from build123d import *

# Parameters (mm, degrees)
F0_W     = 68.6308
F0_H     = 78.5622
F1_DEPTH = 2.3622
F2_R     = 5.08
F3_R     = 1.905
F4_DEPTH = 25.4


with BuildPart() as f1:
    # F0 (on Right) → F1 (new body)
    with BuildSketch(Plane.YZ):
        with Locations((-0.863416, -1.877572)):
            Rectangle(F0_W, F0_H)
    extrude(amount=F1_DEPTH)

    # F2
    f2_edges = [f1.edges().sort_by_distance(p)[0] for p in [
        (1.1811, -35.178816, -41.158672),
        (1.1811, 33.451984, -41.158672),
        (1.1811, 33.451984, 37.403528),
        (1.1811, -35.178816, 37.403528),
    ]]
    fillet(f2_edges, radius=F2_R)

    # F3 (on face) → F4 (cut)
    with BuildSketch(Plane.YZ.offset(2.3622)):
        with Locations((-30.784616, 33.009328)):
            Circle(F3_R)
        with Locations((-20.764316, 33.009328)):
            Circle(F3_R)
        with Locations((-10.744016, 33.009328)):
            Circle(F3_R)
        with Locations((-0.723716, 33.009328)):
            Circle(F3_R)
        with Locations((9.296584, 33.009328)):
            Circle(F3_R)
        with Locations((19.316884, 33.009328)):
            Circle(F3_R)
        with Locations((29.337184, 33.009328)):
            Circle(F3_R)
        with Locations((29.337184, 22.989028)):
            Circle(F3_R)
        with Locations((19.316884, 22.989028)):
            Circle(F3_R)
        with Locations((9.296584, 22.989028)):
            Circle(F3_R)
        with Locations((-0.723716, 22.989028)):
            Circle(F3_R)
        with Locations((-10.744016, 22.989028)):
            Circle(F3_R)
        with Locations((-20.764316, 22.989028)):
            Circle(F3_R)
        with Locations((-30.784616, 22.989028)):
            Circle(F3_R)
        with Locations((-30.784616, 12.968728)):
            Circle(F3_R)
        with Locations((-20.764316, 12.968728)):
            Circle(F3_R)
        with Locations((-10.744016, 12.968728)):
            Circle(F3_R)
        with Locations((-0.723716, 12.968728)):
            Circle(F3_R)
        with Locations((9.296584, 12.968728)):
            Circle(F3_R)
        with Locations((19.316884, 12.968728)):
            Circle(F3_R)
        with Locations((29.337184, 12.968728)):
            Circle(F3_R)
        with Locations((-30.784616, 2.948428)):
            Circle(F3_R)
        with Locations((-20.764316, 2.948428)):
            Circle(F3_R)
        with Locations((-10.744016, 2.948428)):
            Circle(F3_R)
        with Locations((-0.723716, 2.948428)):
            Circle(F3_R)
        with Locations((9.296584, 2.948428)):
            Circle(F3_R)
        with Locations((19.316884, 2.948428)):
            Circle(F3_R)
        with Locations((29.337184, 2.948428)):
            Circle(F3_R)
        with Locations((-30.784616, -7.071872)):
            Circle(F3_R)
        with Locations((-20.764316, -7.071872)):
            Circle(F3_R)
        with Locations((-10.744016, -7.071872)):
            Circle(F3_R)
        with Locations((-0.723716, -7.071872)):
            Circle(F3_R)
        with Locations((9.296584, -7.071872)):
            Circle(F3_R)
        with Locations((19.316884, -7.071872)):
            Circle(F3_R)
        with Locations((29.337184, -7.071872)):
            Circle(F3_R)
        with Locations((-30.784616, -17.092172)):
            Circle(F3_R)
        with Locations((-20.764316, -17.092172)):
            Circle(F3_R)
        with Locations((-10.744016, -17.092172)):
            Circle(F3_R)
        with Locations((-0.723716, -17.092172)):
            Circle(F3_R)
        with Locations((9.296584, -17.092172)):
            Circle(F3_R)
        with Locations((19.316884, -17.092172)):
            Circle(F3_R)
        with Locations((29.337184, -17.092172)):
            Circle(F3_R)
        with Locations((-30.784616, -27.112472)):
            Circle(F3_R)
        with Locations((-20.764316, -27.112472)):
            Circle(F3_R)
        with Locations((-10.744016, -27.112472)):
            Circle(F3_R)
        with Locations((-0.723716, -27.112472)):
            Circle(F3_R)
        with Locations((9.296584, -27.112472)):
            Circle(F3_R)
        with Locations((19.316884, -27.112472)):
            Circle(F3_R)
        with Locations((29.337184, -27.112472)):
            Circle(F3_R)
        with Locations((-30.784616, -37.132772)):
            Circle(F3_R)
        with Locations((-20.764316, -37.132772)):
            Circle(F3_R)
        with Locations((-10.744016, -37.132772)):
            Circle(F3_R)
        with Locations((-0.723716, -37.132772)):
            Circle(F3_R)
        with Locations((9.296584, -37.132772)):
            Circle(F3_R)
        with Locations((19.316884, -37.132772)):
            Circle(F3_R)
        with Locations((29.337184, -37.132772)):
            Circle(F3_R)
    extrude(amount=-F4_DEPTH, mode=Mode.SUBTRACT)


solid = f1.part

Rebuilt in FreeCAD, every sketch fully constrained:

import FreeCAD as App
import Part
import Sketcher
Q = App.Units.Quantity


def edges_at(feature, points):
    """Names of the edges that pass closest to the given points."""
    edges = feature.Shape.Edges
    near = lambda p: min(range(len(edges)), key=lambda i: edges[i].distToShape(Part.Vertex(*p))[0])
    return sorted({f"Edge{near(p) + 1}" for p in points})


def add_polygon(sketch, points):
    """Adds a closed chain of lines whose ends are joined by coincident constraints."""
    first, n = sketch.GeometryCount, len(points)
    for a, b in zip(points, points[1:] + points[:1]):
        sketch.addGeometry(Part.LineSegment(App.Vector(*a, 0), App.Vector(*b, 0)), False)
    for i in range(n):
        sketch.addConstraint(Sketcher.Constraint("Coincident", first + i, 2, first + (i + 1) % n, 1))

doc = App.newDocument("Part")
body = doc.addObject("PartDesign::Body", "Body")

# Sketch on YZ plane
sketch1 = body.newObject("Sketcher::SketchObject", "Sketch")
sketch1.AttachmentSupport = (doc.getObject("YZ_Plane"), [""])
sketch1.MapMode = "FlatFace"
add_polygon(sketch1, [(-35, 37), (-35, -41), (33, -41), (33, 37)])  # lines 0-3
sketch1.addConstraint(Sketcher.Constraint("Vertical", 0))
sketch1.addConstraint(Sketcher.Constraint("Horizontal", 1))
sketch1.addConstraint(Sketcher.Constraint("Vertical", 2))
sketch1.addConstraint(Sketcher.Constraint("Horizontal", 3))
sketch1.addConstraint(Sketcher.Constraint("DistanceX", 1, 1, 1, 2, Q("2.702 in")))
sketch1.addConstraint(Sketcher.Constraint("DistanceY", 0, 2, 0, 1, Q("3.093 in")))
sketch1.addConstraint(Sketcher.Constraint("DistanceX", 0, 2, -1, 1, 35.178816))
sketch1.addConstraint(Sketcher.Constraint("DistanceY", 0, 2, -1, 1, 41.158672))
pad1 = body.newObject("PartDesign::Pad", "Pad")
pad1.Profile = sketch1
pad1.Length = Q("0.093 in")
doc.recompute()

fillet = body.newObject("PartDesign::Fillet", "Fillet")
fillet.Base = (pad1, edges_at(pad1, [
    (1.181, -35.179, -41.159),
    (1.181, 33.452, -41.159),
    (1.181, 33.452, 37.404),
    (1.181, -35.179, 37.404),
]))
fillet.Radius = Q("0.2 in")

# Sketch on YZ plane
sketch2 = body.newObject("Sketcher::SketchObject", "Sketch001")
sketch2.AttachmentSupport = (doc.getObject("YZ_Plane"), [""])
sketch2.MapMode = "FlatFace"
sketch2.AttachmentOffset = App.Placement(App.Vector(0, 0, 0.093 * 25.4), App.Rotation())
sketch2.addGeometry(Part.Circle(App.Vector(-30.8, 33, 0), App.Vector(0, 0, 1), 1.9), False)
sketch2.addGeometry(Part.Circle(App.Vector(-20.8, 33, 0), App.Vector(0, 0, 1), 1.9), False)
sketch2.addGeometry(Part.Circle(App.Vector(-10.7, 33, 0), App.Vector(0, 0, 1), 1.9), False)
sketch2.addGeometry(Part.Circle(App.Vector(-0.7, 33, 0), App.Vector(0, 0, 1), 1.9), False)
sketch2.addGeometry(Part.Circle(App.Vector(9.3, 33, 0), App.Vector(0, 0, 1), 1.9), False)
sketch2.addGeometry(Part.Circle(App.Vector(19.3, 33, 0), App.Vector(0, 0, 1), 1.9), False)
sketch2.addGeometry(Part.Circle(App.Vector(29.3, 33, 0), App.Vector(0, 0, 1), 1.9), False)
sketch2.addGeometry(Part.Circle(App.Vector(29.3, 23, 0), App.Vector(0, 0, 1), 1.9), False)
sketch2.addGeometry(Part.Circle(App.Vector(19.3, 23, 0), App.Vector(0, 0, 1), 1.9), False)
sketch2.addGeometry(Part.Circle(App.Vector(9.3, 23, 0), App.Vector(0, 0, 1), 1.9), False)
sketch2.addGeometry(Part.Circle(App.Vector(-0.7, 23, 0), App.Vector(0, 0, 1), 1.9), False)
sketch2.addGeometry(Part.Circle(App.Vector(-10.7, 23, 0), App.Vector(0, 0, 1), 1.9), False)
sketch2.addGeometry(Part.Circle(App.Vector(-20.8, 23, 0), App.Vector(0, 0, 1), 1.9), False)
sketch2.addGeometry(Part.Circle(App.Vector(-30.8, 23, 0), App.Vector(0, 0, 1), 1.9), False)
sketch2.addGeometry(Part.Circle(App.Vector(-30.8, 13, 0), App.Vector(0, 0, 1), 1.9), False)
sketch2.addGeometry(Part.Circle(App.Vector(-20.8, 13, 0), App.Vector(0, 0, 1), 1.9), False)
sketch2.addGeometry(Part.Circle(App.Vector(-10.7, 13, 0), App.Vector(0, 0, 1), 1.9), False)
sketch2.addGeometry(Part.Circle(App.Vector(-0.7, 13, 0), App.Vector(0, 0, 1), 1.9), False)
sketch2.addGeometry(Part.Circle(App.Vector(9.3, 13, 0), App.Vector(0, 0, 1), 1.9), False)
sketch2.addGeometry(Part.Circle(App.Vector(19.3, 13, 0), App.Vector(0, 0, 1), 1.9), False)
sketch2.addGeometry(Part.Circle(App.Vector(29.3, 13, 0), App.Vector(0, 0, 1), 1.9), False)
sketch2.addGeometry(Part.Circle(App.Vector(-30.8, 2.9, 0), App.Vector(0, 0, 1), 1.9), False)
sketch2.addGeometry(Part.Circle(App.Vector(-20.8, 2.9, 0), App.Vector(0, 0, 1), 1.9), False)
sketch2.addGeometry(Part.Circle(App.Vector(-10.7, 2.9, 0), App.Vector(0, 0, 1), 1.9), False)
sketch2.addGeometry(Part.Circle(App.Vector(-0.7, 2.9, 0), App.Vector(0, 0, 1), 1.9), False)
sketch2.addGeometry(Part.Circle(App.Vector(9.3, 2.9, 0), App.Vector(0, 0, 1), 1.9), False)
sketch2.addGeometry(Part.Circle(App.Vector(19.3, 2.9, 0), App.Vector(0, 0, 1), 1.9), False)
sketch2.addGeometry(Part.Circle(App.Vector(29.3, 2.9, 0), App.Vector(0, 0, 1), 1.9), False)
sketch2.addGeometry(Part.Circle(App.Vector(-30.8, -7.1, 0), App.Vector(0, 0, 1), 1.9), False)
sketch2.addGeometry(Part.Circle(App.Vector(-20.8, -7.1, 0), App.Vector(0, 0, 1), 1.9), False)
sketch2.addGeometry(Part.Circle(App.Vector(-10.7, -7.1, 0), App.Vector(0, 0, 1), 1.9), False)
sketch2.addGeometry(Part.Circle(App.Vector(-0.7, -7.1, 0), App.Vector(0, 0, 1), 1.9), False)
sketch2.addGeometry(Part.Circle(App.Vector(9.3, -7.1, 0), App.Vector(0, 0, 1), 1.9), False)
sketch2.addGeometry(Part.Circle(App.Vector(19.3, -7.1, 0), App.Vector(0, 0, 1), 1.9), False)
sketch2.addGeometry(Part.Circle(App.Vector(29.3, -7.1, 0), App.Vector(0, 0, 1), 1.9), False)
sketch2.addGeometry(Part.Circle(App.Vector(-30.8, -17.1, 0), App.Vector(0, 0, 1), 1.9), False)
sketch2.addGeometry(Part.Circle(App.Vector(-20.8, -17.1, 0), App.Vector(0, 0, 1), 1.9), False)
sketch2.addGeometry(Part.Circle(App.Vector(-10.7, -17.1, 0), App.Vector(0, 0, 1), 1.9), False)
sketch2.addGeometry(Part.Circle(App.Vector(-0.7, -17.1, 0), App.Vector(0, 0, 1), 1.9), False)
sketch2.addGeometry(Part.Circle(App.Vector(9.3, -17.1, 0), App.Vector(0, 0, 1), 1.9), False)
sketch2.addGeometry(Part.Circle(App.Vector(19.3, -17.1, 0), App.Vector(0, 0, 1), 1.9), False)
sketch2.addGeometry(Part.Circle(App.Vector(29.3, -17.1, 0), App.Vector(0, 0, 1), 1.9), False)
sketch2.addGeometry(Part.Circle(App.Vector(-30.8, -27.1, 0), App.Vector(0, 0, 1), 1.9), False)
sketch2.addGeometry(Part.Circle(App.Vector(-20.8, -27.1, 0), App.Vector(0, 0, 1), 1.9), False)
sketch2.addGeometry(Part.Circle(App.Vector(-10.7, -27.1, 0), App.Vector(0, 0, 1), 1.9), False)
sketch2.addGeometry(Part.Circle(App.Vector(-0.7, -27.1, 0), App.Vector(0, 0, 1), 1.9), False)
sketch2.addGeometry(Part.Circle(App.Vector(9.3, -27.1, 0), App.Vector(0, 0, 1), 1.9), False)
sketch2.addGeometry(Part.Circle(App.Vector(19.3, -27.1, 0), App.Vector(0, 0, 1), 1.9), False)
sketch2.addGeometry(Part.Circle(App.Vector(29.3, -27.1, 0), App.Vector(0, 0, 1), 1.9), False)
sketch2.addGeometry(Part.Circle(App.Vector(-30.8, -37.1, 0), App.Vector(0, 0, 1), 1.9), False)
sketch2.addGeometry(Part.Circle(App.Vector(-20.8, -37.1, 0), App.Vector(0, 0, 1), 1.9), False)
sketch2.addGeometry(Part.Circle(App.Vector(-10.7, -37.1, 0), App.Vector(0, 0, 1), 1.9), False)
sketch2.addGeometry(Part.Circle(App.Vector(-0.7, -37.1, 0), App.Vector(0, 0, 1), 1.9), False)
sketch2.addGeometry(Part.Circle(App.Vector(9.3, -37.1, 0), App.Vector(0, 0, 1), 1.9), False)
sketch2.addGeometry(Part.Circle(App.Vector(19.3, -37.1, 0), App.Vector(0, 0, 1), 1.9), False)
sketch2.addGeometry(Part.Circle(App.Vector(29.3, -37.1, 0), App.Vector(0, 0, 1), 1.9), False)
sketch2.addConstraint(Sketcher.Constraint("Equal", 0, 1))
sketch2.addConstraint(Sketcher.Constraint("Equal", 1, 2))
sketch2.addConstraint(Sketcher.Constraint("Equal", 2, 3))
sketch2.addConstraint(Sketcher.Constraint("Equal", 3, 4))
sketch2.addConstraint(Sketcher.Constraint("Equal", 4, 5))
sketch2.addConstraint(Sketcher.Constraint("Equal", 5, 6))
sketch2.addConstraint(Sketcher.Constraint("Equal", 6, 7))
sketch2.addConstraint(Sketcher.Constraint("Equal", 7, 8))
sketch2.addConstraint(Sketcher.Constraint("Equal", 8, 9))
sketch2.addConstraint(Sketcher.Constraint("Equal", 9, 10))
sketch2.addConstraint(Sketcher.Constraint("Equal", 10, 11))
sketch2.addConstraint(Sketcher.Constraint("Equal", 11, 12))
sketch2.addConstraint(Sketcher.Constraint("Equal", 12, 13))
sketch2.addConstraint(Sketcher.Constraint("Equal", 13, 14))
sketch2.addConstraint(Sketcher.Constraint("Equal", 14, 15))
sketch2.addConstraint(Sketcher.Constraint("Equal", 15, 16))
sketch2.addConstraint(Sketcher.Constraint("Equal", 16, 17))
sketch2.addConstraint(Sketcher.Constraint("Equal", 17, 18))
sketch2.addConstraint(Sketcher.Constraint("Equal", 18, 19))
sketch2.addConstraint(Sketcher.Constraint("Equal", 19, 20))
sketch2.addConstraint(Sketcher.Constraint("Equal", 20, 21))
sketch2.addConstraint(Sketcher.Constraint("Equal", 21, 22))
sketch2.addConstraint(Sketcher.Constraint("Equal", 22, 23))
sketch2.addConstraint(Sketcher.Constraint("Equal", 23, 24))
sketch2.addConstraint(Sketcher.Constraint("Equal", 24, 25))
sketch2.addConstraint(Sketcher.Constraint("Equal", 25, 26))
sketch2.addConstraint(Sketcher.Constraint("Equal", 26, 27))
sketch2.addConstraint(Sketcher.Constraint("Equal", 27, 28))
sketch2.addConstraint(Sketcher.Constraint("Equal", 28, 29))
sketch2.addConstraint(Sketcher.Constraint("Equal", 29, 30))
sketch2.addConstraint(Sketcher.Constraint("Equal", 30, 31))
sketch2.addConstraint(Sketcher.Constraint("Equal", 31, 32))
sketch2.addConstraint(Sketcher.Constraint("Equal", 32, 33))
sketch2.addConstraint(Sketcher.Constraint("Equal", 33, 34))
sketch2.addConstraint(Sketcher.Constraint("Equal", 34, 35))
sketch2.addConstraint(Sketcher.Constraint("Equal", 35, 36))
sketch2.addConstraint(Sketcher.Constraint("Equal", 36, 37))
sketch2.addConstraint(Sketcher.Constraint("Equal", 37, 38))
sketch2.addConstraint(Sketcher.Constraint("Equal", 38, 39))
sketch2.addConstraint(Sketcher.Constraint("Equal", 39, 40))
sketch2.addConstraint(Sketcher.Constraint("Equal", 40, 41))
sketch2.addConstraint(Sketcher.Constraint("Equal", 41, 42))
sketch2.addConstraint(Sketcher.Constraint("Equal", 42, 43))
sketch2.addConstraint(Sketcher.Constraint("Equal", 43, 44))
sketch2.addConstraint(Sketcher.Constraint("Equal", 44, 45))
sketch2.addConstraint(Sketcher.Constraint("Equal", 45, 46))
sketch2.addConstraint(Sketcher.Constraint("Equal", 46, 47))
sketch2.addConstraint(Sketcher.Constraint("Equal", 47, 48))
sketch2.addConstraint(Sketcher.Constraint("Equal", 48, 49))
sketch2.addConstraint(Sketcher.Constraint("Equal", 49, 50))
sketch2.addConstraint(Sketcher.Constraint("Equal", 50, 51))
sketch2.addConstraint(Sketcher.Constraint("Equal", 51, 52))
sketch2.addConstraint(Sketcher.Constraint("Equal", 52, 53))
sketch2.addConstraint(Sketcher.Constraint("Equal", 53, 54))
sketch2.addConstraint(Sketcher.Constraint("Equal", 54, 55))
sketch2.addConstraint(Sketcher.Constraint("Horizontal", 0, 3, 1, 3))
sketch2.addConstraint(Sketcher.Constraint("Horizontal", 1, 3, 2, 3))
sketch2.addConstraint(Sketcher.Constraint("Horizontal", 2, 3, 3, 3))
sketch2.addConstraint(Sketcher.Constraint("Horizontal", 3, 3, 4, 3))
sketch2.addConstraint(Sketcher.Constraint("Horizontal", 4, 3, 5, 3))
sketch2.addConstraint(Sketcher.Constraint("Horizontal", 5, 3, 6, 3))
sketch2.addConstraint(Sketcher.Constraint("Horizontal", 7, 3, 8, 3))
sketch2.addConstraint(Sketcher.Constraint("Horizontal", 8, 3, 9, 3))
sketch2.addConstraint(Sketcher.Constraint("Horizontal", 9, 3, 10, 3))
sketch2.addConstraint(Sketcher.Constraint("Horizontal", 10, 3, 11, 3))
sketch2.addConstraint(Sketcher.Constraint("Horizontal", 11, 3, 12, 3))
sketch2.addConstraint(Sketcher.Constraint("Horizontal", 12, 3, 13, 3))
sketch2.addConstraint(Sketcher.Constraint("Horizontal", 14, 3, 15, 3))
sketch2.addConstraint(Sketcher.Constraint("Horizontal", 15, 3, 16, 3))
sketch2.addConstraint(Sketcher.Constraint("Horizontal", 16, 3, 17, 3))
sketch2.addConstraint(Sketcher.Constraint("Horizontal", 17, 3, 18, 3))
sketch2.addConstraint(Sketcher.Constraint("Horizontal", 18, 3, 19, 3))
sketch2.addConstraint(Sketcher.Constraint("Horizontal", 19, 3, 20, 3))
sketch2.addConstraint(Sketcher.Constraint("Horizontal", 21, 3, 22, 3))
sketch2.addConstraint(Sketcher.Constraint("Horizontal", 22, 3, 23, 3))
sketch2.addConstraint(Sketcher.Constraint("Horizontal", 23, 3, 24, 3))
sketch2.addConstraint(Sketcher.Constraint("Horizontal", 24, 3, 25, 3))
sketch2.addConstraint(Sketcher.Constraint("Horizontal", 25, 3, 26, 3))
sketch2.addConstraint(Sketcher.Constraint("Horizontal", 26, 3, 27, 3))
sketch2.addConstraint(Sketcher.Constraint("Horizontal", 28, 3, 29, 3))
sketch2.addConstraint(Sketcher.Constraint("Horizontal", 29, 3, 30, 3))
sketch2.addConstraint(Sketcher.Constraint("Horizontal", 30, 3, 31, 3))
sketch2.addConstraint(Sketcher.Constraint("Horizontal", 31, 3, 32, 3))
sketch2.addConstraint(Sketcher.Constraint("Horizontal", 32, 3, 33, 3))
sketch2.addConstraint(Sketcher.Constraint("Horizontal", 33, 3, 34, 3))
sketch2.addConstraint(Sketcher.Constraint("Horizontal", 35, 3, 36, 3))
sketch2.addConstraint(Sketcher.Constraint("Horizontal", 36, 3, 37, 3))
sketch2.addConstraint(Sketcher.Constraint("Horizontal", 37, 3, 38, 3))
sketch2.addConstraint(Sketcher.Constraint("Horizontal", 38, 3, 39, 3))
sketch2.addConstraint(Sketcher.Constraint("Horizontal", 39, 3, 40, 3))
sketch2.addConstraint(Sketcher.Constraint("Horizontal", 40, 3, 41, 3))
sketch2.addConstraint(Sketcher.Constraint("Horizontal", 42, 3, 43, 3))
sketch2.addConstraint(Sketcher.Constraint("Horizontal", 43, 3, 44, 3))
sketch2.addConstraint(Sketcher.Constraint("Horizontal", 44, 3, 45, 3))
sketch2.addConstraint(Sketcher.Constraint("Horizontal", 45, 3, 46, 3))
sketch2.addConstraint(Sketcher.Constraint("Horizontal", 46, 3, 47, 3))
sketch2.addConstraint(Sketcher.Constraint("Horizontal", 47, 3, 48, 3))
sketch2.addConstraint(Sketcher.Constraint("Horizontal", 49, 3, 50, 3))
sketch2.addConstraint(Sketcher.Constraint("Horizontal", 50, 3, 51, 3))
sketch2.addConstraint(Sketcher.Constraint("Horizontal", 51, 3, 52, 3))
sketch2.addConstraint(Sketcher.Constraint("Horizontal", 52, 3, 53, 3))
sketch2.addConstraint(Sketcher.Constraint("Horizontal", 53, 3, 54, 3))
sketch2.addConstraint(Sketcher.Constraint("Horizontal", 54, 3, 55, 3))
sketch2.addConstraint(Sketcher.Constraint("Vertical", 6, 3, 7, 3))
sketch2.addConstraint(Sketcher.Constraint("Vertical", 5, 3, 8, 3))
sketch2.addConstraint(Sketcher.Constraint("Vertical", 4, 3, 9, 3))
sketch2.addConstraint(Sketcher.Constraint("Vertical", 3, 3, 10, 3))
sketch2.addConstraint(Sketcher.Constraint("Vertical", 2, 3, 11, 3))
sketch2.addConstraint(Sketcher.Constraint("Vertical", 1, 3, 12, 3))
sketch2.addConstraint(Sketcher.Constraint("Vertical", 0, 3, 13, 3))
sketch2.addConstraint(Sketcher.Constraint("Vertical", 13, 3, 14, 3))
sketch2.addConstraint(Sketcher.Constraint("Vertical", 12, 3, 15, 3))
sketch2.addConstraint(Sketcher.Constraint("Vertical", 11, 3, 16, 3))
sketch2.addConstraint(Sketcher.Constraint("Vertical", 10, 3, 17, 3))
sketch2.addConstraint(Sketcher.Constraint("Vertical", 9, 3, 18, 3))
sketch2.addConstraint(Sketcher.Constraint("Vertical", 8, 3, 19, 3))
sketch2.addConstraint(Sketcher.Constraint("Vertical", 7, 3, 20, 3))
sketch2.addConstraint(Sketcher.Constraint("Vertical", 14, 3, 21, 3))
sketch2.addConstraint(Sketcher.Constraint("Vertical", 15, 3, 22, 3))
sketch2.addConstraint(Sketcher.Constraint("Vertical", 16, 3, 23, 3))
sketch2.addConstraint(Sketcher.Constraint("Vertical", 17, 3, 24, 3))
sketch2.addConstraint(Sketcher.Constraint("Vertical", 18, 3, 25, 3))
sketch2.addConstraint(Sketcher.Constraint("Vertical", 19, 3, 26, 3))
sketch2.addConstraint(Sketcher.Constraint("Vertical", 20, 3, 27, 3))
sketch2.addConstraint(Sketcher.Constraint("Vertical", 21, 3, 28, 3))
sketch2.addConstraint(Sketcher.Constraint("Vertical", 22, 3, 29, 3))
sketch2.addConstraint(Sketcher.Constraint("Vertical", 23, 3, 30, 3))
sketch2.addConstraint(Sketcher.Constraint("Vertical", 24, 3, 31, 3))
sketch2.addConstraint(Sketcher.Constraint("Vertical", 25, 3, 32, 3))
sketch2.addConstraint(Sketcher.Constraint("Vertical", 26, 3, 33, 3))
sketch2.addConstraint(Sketcher.Constraint("Vertical", 27, 3, 34, 3))
sketch2.addConstraint(Sketcher.Constraint("Vertical", 28, 3, 35, 3))
sketch2.addConstraint(Sketcher.Constraint("Vertical", 29, 3, 36, 3))
sketch2.addConstraint(Sketcher.Constraint("Vertical", 30, 3, 37, 3))
sketch2.addConstraint(Sketcher.Constraint("Vertical", 31, 3, 38, 3))
sketch2.addConstraint(Sketcher.Constraint("Vertical", 32, 3, 39, 3))
sketch2.addConstraint(Sketcher.Constraint("Vertical", 33, 3, 40, 3))
sketch2.addConstraint(Sketcher.Constraint("Vertical", 34, 3, 41, 3))
sketch2.addConstraint(Sketcher.Constraint("Vertical", 35, 3, 42, 3))
sketch2.addConstraint(Sketcher.Constraint("Vertical", 36, 3, 43, 3))
sketch2.addConstraint(Sketcher.Constraint("Vertical", 37, 3, 44, 3))
sketch2.addConstraint(Sketcher.Constraint("Vertical", 38, 3, 45, 3))
sketch2.addConstraint(Sketcher.Constraint("Vertical", 39, 3, 46, 3))
sketch2.addConstraint(Sketcher.Constraint("Vertical", 40, 3, 47, 3))
sketch2.addConstraint(Sketcher.Constraint("Vertical", 41, 3, 48, 3))
sketch2.addConstraint(Sketcher.Constraint("Vertical", 42, 3, 49, 3))
sketch2.addConstraint(Sketcher.Constraint("Vertical", 43, 3, 50, 3))
sketch2.addConstraint(Sketcher.Constraint("Vertical", 44, 3, 51, 3))
sketch2.addConstraint(Sketcher.Constraint("Vertical", 45, 3, 52, 3))
sketch2.addConstraint(Sketcher.Constraint("Vertical", 46, 3, 53, 3))
sketch2.addConstraint(Sketcher.Constraint("Vertical", 47, 3, 54, 3))
sketch2.addConstraint(Sketcher.Constraint("Vertical", 48, 3, 55, 3))
sketch2.addConstraint(Sketcher.Constraint("Diameter", 0, Q("0.15 in")))
sketch2.addConstraint(Sketcher.Constraint("DistanceX", 0, 3, 2, 3, Q("0.789 in")))
sketch2.addConstraint(Sketcher.Constraint("DistanceX", 1, 3, 3, 3, Q("0.789 in")))
sketch2.addConstraint(Sketcher.Constraint("DistanceX", 2, 3, 4, 3, Q("0.789 in")))
sketch2.addConstraint(Sketcher.Constraint("DistanceX", 3, 3, 5, 3, Q("0.789 in")))
sketch2.addConstraint(Sketcher.Constraint("DistanceX", 4, 3, 6, 3, Q("0.789 in")))
sketch2.addConstraint(Sketcher.Constraint("DistanceY", 14, 3, 0, 3, Q("0.789 in")))
sketch2.addConstraint(Sketcher.Constraint("DistanceY", 21, 3, 13, 3, Q("0.789 in")))
sketch2.addConstraint(Sketcher.Constraint("DistanceY", 28, 3, 14, 3, Q("0.789 in")))
sketch2.addConstraint(Sketcher.Constraint("DistanceY", 35, 3, 21, 3, Q("0.789 in")))
sketch2.addConstraint(Sketcher.Constraint("DistanceY", 42, 3, 28, 3, Q("0.789 in")))
sketch2.addConstraint(Sketcher.Constraint("DistanceY", 49, 3, 35, 3, Q("0.789 in")))
sketch2.addConstraint(Sketcher.Constraint("DistanceX", 0, 3, 1, 3, Q("0.3945 in")))
sketch2.addConstraint(Sketcher.Constraint("DistanceY", 7, 3, 6, 3, Q("0.3945 in")))
sketch2.addConstraint(Sketcher.Constraint("DistanceY", -1, 1, 7, 3, 22.989028))
sketch2.addConstraint(Sketcher.Constraint("DistanceX", 0, 3, -1, 1, 30.784616))
pocket1 = body.newObject("PartDesign::Pocket", "Pocket")
pocket1.Profile = sketch2
pocket1.Length = Q("1 in")

doc.recompute()
